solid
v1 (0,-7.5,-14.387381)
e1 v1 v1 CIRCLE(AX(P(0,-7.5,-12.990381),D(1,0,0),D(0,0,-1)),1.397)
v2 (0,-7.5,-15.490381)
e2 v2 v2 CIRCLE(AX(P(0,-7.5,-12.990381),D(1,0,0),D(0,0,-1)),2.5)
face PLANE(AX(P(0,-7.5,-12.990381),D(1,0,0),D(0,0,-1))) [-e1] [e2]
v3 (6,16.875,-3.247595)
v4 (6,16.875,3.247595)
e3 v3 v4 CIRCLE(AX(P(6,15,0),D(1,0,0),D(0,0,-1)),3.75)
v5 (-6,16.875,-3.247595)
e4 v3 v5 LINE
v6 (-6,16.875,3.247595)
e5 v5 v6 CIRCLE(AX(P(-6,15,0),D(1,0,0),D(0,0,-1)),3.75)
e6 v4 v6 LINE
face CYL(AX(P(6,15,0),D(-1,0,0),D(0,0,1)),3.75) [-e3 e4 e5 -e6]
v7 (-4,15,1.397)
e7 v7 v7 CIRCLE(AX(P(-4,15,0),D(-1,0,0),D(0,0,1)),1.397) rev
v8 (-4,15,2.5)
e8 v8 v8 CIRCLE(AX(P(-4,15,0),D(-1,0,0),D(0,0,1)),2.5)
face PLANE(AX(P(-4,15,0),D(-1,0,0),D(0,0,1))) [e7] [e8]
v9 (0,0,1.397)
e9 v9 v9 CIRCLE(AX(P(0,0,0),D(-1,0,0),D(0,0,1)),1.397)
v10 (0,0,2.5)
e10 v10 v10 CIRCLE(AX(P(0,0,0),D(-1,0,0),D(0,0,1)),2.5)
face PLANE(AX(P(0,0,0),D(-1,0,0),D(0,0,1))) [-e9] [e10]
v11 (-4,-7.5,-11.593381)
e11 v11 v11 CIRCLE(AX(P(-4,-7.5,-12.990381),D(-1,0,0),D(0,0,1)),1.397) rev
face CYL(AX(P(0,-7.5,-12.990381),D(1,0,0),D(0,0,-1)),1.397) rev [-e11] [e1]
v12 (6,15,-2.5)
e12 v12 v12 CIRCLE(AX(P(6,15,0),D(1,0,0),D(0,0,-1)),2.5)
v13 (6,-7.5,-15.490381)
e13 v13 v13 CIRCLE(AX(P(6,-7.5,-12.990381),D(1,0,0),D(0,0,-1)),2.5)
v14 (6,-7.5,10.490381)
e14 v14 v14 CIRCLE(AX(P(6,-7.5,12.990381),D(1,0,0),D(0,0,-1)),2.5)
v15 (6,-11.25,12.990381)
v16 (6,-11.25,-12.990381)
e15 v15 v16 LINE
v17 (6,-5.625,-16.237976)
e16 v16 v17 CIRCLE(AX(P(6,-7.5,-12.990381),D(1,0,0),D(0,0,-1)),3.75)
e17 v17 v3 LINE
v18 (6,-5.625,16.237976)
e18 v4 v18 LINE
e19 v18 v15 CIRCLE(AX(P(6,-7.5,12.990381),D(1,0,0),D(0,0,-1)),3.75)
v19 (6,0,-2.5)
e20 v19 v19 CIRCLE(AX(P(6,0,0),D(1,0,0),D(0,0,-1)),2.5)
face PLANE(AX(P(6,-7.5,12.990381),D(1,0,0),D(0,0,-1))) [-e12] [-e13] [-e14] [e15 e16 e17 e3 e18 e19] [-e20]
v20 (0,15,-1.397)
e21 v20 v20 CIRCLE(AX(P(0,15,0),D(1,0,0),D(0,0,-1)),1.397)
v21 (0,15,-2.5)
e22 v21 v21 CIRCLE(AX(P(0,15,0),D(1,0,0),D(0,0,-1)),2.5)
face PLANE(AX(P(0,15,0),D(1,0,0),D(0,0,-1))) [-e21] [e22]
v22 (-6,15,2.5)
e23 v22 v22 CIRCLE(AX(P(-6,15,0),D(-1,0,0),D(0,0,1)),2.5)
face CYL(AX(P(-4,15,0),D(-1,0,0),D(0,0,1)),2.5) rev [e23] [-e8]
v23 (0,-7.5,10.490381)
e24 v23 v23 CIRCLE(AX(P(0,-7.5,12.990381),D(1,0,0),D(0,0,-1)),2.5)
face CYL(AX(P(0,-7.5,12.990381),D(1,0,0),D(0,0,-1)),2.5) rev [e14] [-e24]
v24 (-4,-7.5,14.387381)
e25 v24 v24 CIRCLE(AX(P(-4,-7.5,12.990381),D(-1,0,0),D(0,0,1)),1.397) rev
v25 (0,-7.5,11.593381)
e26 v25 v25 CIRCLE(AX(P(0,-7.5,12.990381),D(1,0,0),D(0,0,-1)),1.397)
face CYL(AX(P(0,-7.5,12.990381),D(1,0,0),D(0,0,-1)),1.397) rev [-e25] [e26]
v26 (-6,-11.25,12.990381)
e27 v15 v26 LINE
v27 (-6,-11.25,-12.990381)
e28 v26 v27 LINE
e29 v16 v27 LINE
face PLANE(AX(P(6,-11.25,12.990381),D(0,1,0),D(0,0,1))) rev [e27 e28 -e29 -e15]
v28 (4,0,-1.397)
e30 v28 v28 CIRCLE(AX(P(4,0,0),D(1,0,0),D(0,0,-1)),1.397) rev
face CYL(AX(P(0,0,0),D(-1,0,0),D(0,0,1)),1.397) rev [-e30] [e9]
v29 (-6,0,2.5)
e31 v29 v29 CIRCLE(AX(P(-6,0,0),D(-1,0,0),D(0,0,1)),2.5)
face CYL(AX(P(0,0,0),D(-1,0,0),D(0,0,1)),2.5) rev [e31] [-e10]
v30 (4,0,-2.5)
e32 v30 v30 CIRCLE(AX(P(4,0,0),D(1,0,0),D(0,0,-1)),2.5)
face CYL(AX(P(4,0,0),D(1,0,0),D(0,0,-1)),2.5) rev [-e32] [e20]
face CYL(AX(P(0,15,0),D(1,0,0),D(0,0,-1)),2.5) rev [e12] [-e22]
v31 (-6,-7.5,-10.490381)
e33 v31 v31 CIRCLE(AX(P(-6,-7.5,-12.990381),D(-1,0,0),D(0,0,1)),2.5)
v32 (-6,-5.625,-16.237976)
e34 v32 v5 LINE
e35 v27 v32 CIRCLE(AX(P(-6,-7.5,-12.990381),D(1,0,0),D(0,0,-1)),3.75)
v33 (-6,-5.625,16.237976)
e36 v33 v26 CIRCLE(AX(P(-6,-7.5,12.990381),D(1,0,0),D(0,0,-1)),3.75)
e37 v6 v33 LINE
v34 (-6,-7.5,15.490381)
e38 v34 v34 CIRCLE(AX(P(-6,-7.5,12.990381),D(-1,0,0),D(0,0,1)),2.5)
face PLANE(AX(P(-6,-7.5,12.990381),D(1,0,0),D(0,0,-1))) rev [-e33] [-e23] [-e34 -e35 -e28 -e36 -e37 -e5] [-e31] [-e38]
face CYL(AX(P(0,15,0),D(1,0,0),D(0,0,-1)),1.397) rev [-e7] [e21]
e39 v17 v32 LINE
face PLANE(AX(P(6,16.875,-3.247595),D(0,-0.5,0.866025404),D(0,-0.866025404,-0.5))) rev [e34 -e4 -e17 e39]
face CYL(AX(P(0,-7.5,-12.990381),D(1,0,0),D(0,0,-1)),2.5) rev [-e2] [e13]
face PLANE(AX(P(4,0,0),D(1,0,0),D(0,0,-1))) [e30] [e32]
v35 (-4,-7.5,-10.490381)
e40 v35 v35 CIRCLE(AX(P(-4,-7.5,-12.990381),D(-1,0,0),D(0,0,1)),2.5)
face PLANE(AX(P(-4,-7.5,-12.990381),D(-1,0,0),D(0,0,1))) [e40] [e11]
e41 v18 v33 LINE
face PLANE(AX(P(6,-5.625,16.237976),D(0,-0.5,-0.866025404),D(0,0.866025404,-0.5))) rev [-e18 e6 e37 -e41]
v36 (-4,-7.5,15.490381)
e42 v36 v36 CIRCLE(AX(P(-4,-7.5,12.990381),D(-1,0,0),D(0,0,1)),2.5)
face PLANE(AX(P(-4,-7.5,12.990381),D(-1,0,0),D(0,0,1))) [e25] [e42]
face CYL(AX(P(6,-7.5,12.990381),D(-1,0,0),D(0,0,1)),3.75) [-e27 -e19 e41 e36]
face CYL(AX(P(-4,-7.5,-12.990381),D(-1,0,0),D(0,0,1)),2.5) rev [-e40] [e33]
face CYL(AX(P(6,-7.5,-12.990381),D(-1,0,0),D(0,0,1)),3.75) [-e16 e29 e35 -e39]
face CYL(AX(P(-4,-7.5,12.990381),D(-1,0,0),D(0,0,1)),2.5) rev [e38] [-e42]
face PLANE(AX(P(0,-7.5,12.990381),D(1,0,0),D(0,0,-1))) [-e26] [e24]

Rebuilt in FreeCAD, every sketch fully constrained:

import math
import FreeCAD as App
import Part
import Sketcher
Q = App.Units.Quantity

doc = App.newDocument("Part")
body = doc.addObject("PartDesign::Body", "Body")

# Sketch on YZ plane
sketch1 = body.newObject("Sketcher::SketchObject", "Sketch")
sketch1.AttachmentSupport = (doc.getObject("YZ_Plane"), [""])
sketch1.MapMode = "FlatFace"
sketch1.addGeometry(Part.LineSegment(App.Vector(16.9, 3.2, 0), App.Vector(-5.6, 16.2, 0)), False)
sketch1.addGeometry(Part.ArcOfCircle(Part.Circle(App.Vector(-7.5, 13, 0), App.Vector(0, 0, 1), 3.8), math.radians(60), math.radians(180)), False)
sketch1.addGeometry(Part.LineSegment(App.Vector(-11.2, 13, 0), App.Vector(-11.2, -13, 0)), False)
sketch1.addGeometry(Part.ArcOfCircle(Part.Circle(App.Vector(-7.5, -13, 0), App.Vector(0, 0, 1), 3.8), math.radians(180), math.radians(300)), False)
sketch1.addGeometry(Part.LineSegment(App.Vector(-5.6, -16.2, 0), App.Vector(16.9, -3.2, 0)), False)
sketch1.addGeometry(Part.ArcOfCircle(Part.Circle(App.Vector(15, 0, 0), App.Vector(0, 0, 1), 3.8), math.radians(-60), math.radians(60)), False)
sketch1.addConstraint(Sketcher.Constraint("Tangent", 0, 2, 1, 1))
sketch1.addConstraint(Sketcher.Constraint("Tangent", 1, 2, 2, 1))
sketch1.addConstraint(Sketcher.Constraint("Tangent", 2, 2, 3, 1))
sketch1.addConstraint(Sketcher.Constraint("Tangent", 3, 2, 4, 1))
sketch1.addConstraint(Sketcher.Constraint("Tangent", 4, 2, 5, 1))
sketch1.addConstraint(Sketcher.Constraint("Tangent", 5, 2, 0, 1))
sketch1.addConstraint(Sketcher.Constraint("Vertical", 2))
sketch1.addConstraint(Sketcher.Constraint("Equal", 1, 3))
sketch1.addConstraint(Sketcher.Constraint("Equal", 3, 5))
sketch1.addConstraint(Sketcher.Constraint("Symmetric", 0, 2, 3, 2, -1))
sketch1.addConstraint(Sketcher.Constraint("Angle", 0, Q("150 deg")))
sketch1.addConstraint(Sketcher.Constraint("Radius", 1, 3.75))
sketch1.addConstraint(Sketcher.Constraint("DistanceX", -1, 1, 5, 3, 15.0))
sketch1.addConstraint(Sketcher.Constraint("DistanceX", 1, 3, -1, 1, 7.5))
pad1 = body.newObject("PartDesign::Pad", "Pad")
pad1.Profile = sketch1
pad1.Length = 12
pad1.Midplane = True

# Sketch on YZ plane
sketch2 = body.newObject("Sketcher::SketchObject", "Sketch001")
sketch2.AttachmentSupport = (doc.getObject("YZ_Plane"), [""])
sketch2.MapMode = "FlatFace"
sketch2.AttachmentOffset = App.Placement(App.Vector(0, 0, 6), App.Rotation())
sketch2.addGeometry(Part.Circle(App.Vector(15, 0, 0), App.Vector(0, 0, 1), 2.5), False)
sketch2.addGeometry(Part.Circle(App.Vector(-7.5, 13, 0), App.Vector(0, 0, 1), 2.5), False)
sketch2.addGeometry(Part.Circle(App.Vector(-7.5, -13, 0), App.Vector(0, 0, 1), 2.5), False)
sketch2.addConstraint(Sketcher.Constraint("Equal", 0, 1))
sketch2.addConstraint(Sketcher.Constraint("Equal", 1, 2))
sketch2.addConstraint(Sketcher.Constraint("Symmetric", 1, 3, 2, 3, -1))
sketch2.addConstraint(Sketcher.Constraint("PointOnObject", 0, 3, -1))
sketch2.addConstraint(Sketcher.Constraint("Diameter", 0, 5.0))
sketch2.addConstraint(Sketcher.Constraint("DistanceX", -1, 1, 0, 3, 15.0))
sketch2.addConstraint(Sketcher.Constraint("DistanceX", 1, 3, -1, 1, 7.5))
sketch2.addConstraint(Sketcher.Constraint("DistanceY", -1, 1, 1, 3, 12.990381))
pocket1 = body.newObject("PartDesign::Pocket", "Pocket")
pocket1.Profile = sketch2
pocket1.Length = 6

# Sketch on YZ plane
sketch3 = body.newObject("Sketcher::SketchObject", "Sketch002")
sketch3.AttachmentSupport = (doc.getObject("YZ_Plane"), [""])
sketch3.MapMode = "FlatFace"
sketch3.AttachmentOffset = App.Placement(App.Vector(0, 0, -6), App.Rotation())
sketch3.addGeometry(Part.Circle(App.Vector(0, 0, 0), App.Vector(0, 0, 1), 2.5), False)
sketch3.addConstraint(Sketcher.Constraint("Coincident", 0, 3, -1, 1))
sketch3.addConstraint(Sketcher.Constraint("Diameter", 0, 5.0))
pocket2 = body.newObject("PartDesign::Pocket", "Pocket001")
pocket2.Profile = sketch3
pocket2.Length = 6
pocket2.Reversed = True

# Sketch on YZ plane
sketch4 = body.newObject("Sketcher::SketchObject", "Sketch003")
sketch4.AttachmentSupport = (doc.getObject("YZ_Plane"), [""])
sketch4.MapMode = "FlatFace"
sketch4.addGeometry(Part.Circle(App.Vector(-7.5, -13, 0), App.Vector(0, 0, 1), 1.4), False)
sketch4.addGeometry(Part.Circle(App.Vector(15, 0, 0), App.Vector(0, 0, 1), 1.4), False)
sketch4.addGeometry(Part.Circle(App.Vector(-7.5, 13, 0), App.Vector(0, 0, 1), 1.4), False)
sketch4.addConstraint(Sketcher.Constraint("Equal", 0, 1))
sketch4.addConstraint(Sketcher.Constraint("Equal", 1, 2))
sketch4.addConstraint(Sketcher.Constraint("Symmetric", 0, 3, 2, 3, -1))
sketch4.addConstraint(Sketcher.Constraint("PointOnObject", 1, 3, -1))
sketch4.addConstraint(Sketcher.Constraint("Diameter", 0, 2.794))
sketch4.addConstraint(Sketcher.Constraint("DistanceX", -1, 1, 1, 3, 15.0))
sketch4.addConstraint(Sketcher.Constraint("DistanceX", 0, 3, -1, 1, 7.5))
sketch4.addConstraint(Sketcher.Constraint("DistanceY", 0, 3, -1, 1, 12.990381))
doc.recompute()
hole = body.newObject("PartDesign::Hole", "Hole")
hole.Profile = sketch4
hole.ThreadType = "None"
hole.Diameter = 2.794
hole.DepthType = "Dimension"
hole.Depth = 6
hole.DrillPoint = "Angled"
hole.DrillPointAngle = 118

# Sketch on YZ plane
sketch5 = body.newObject("Sketcher::SketchObject", "Sketch004")
sketch5.AttachmentSupport = (doc.getObject("YZ_Plane"), [""])
sketch5.MapMode = "FlatFace"
sketch5.addGeometry(Part.Circle(App.Vector(0, 0, 0), App.Vector(0, 0, 1), 1.4), False)
sketch5.addConstraint(Sketcher.Constraint("Coincident", 0, 3, -1, 1))
sketch5.addConstraint(Sketcher.Constraint("Diameter", 0, 2.794))
doc.recompute()
hole2 = body.newObject("PartDesign::Hole", "Hole001")
hole2.Profile = sketch5
hole2.ThreadType = "None"
hole2.Diameter = 2.794
hole2.DepthType = "Dimension"
hole2.Depth = 6
hole2.DrillPoint = "Angled"
hole2.DrillPointAngle = 118
hole2.Reversed = True

# Sketch on YZ plane
sketch6 = body.newObject("Sketcher::SketchObject", "Sketch005")
sketch6.AttachmentSupport = (doc.getObject("YZ_Plane"), [""])
sketch6.MapMode = "FlatFace"
sketch6.AttachmentOffset = App.Placement(App.Vector(0, 0, -4), App.Rotation())
sketch6.addGeometry(Part.Circle(App.Vector(15, 0, 0), App.Vector(0, 0, 1), 2.5), False)
sketch6.addGeometry(Part.Circle(App.Vector(-7.5, -13, 0), App.Vector(0, 0, 1), 2.5), False)
sketch6.addGeometry(Part.Circle(App.Vector(-7.5, 13, 0), App.Vector(0, 0, 1), 2.5), False)
sketch6.addConstraint(Sketcher.Constraint("Equal", 0, 1))
sketch6.addConstraint(Sketcher.Constraint("Equal", 1, 2))
sketch6.addConstraint(Sketcher.Constraint("Symmetric", 1, 3, 2, 3, -1))
sketch6.addConstraint(Sketcher.Constraint("PointOnObject", 0, 3, -1))
sketch6.addConstraint(Sketcher.Constraint("Diameter", 0, 5.0))
sketch6.addConstraint(Sketcher.Constraint("DistanceX", -1, 1, 0, 3, 15.0))
sketch6.addConstraint(Sketcher.Constraint("DistanceX", 1, 3, -1, 1, 7.5))
sketch6.addConstraint(Sketcher.Constraint("DistanceY", 1, 3, -1, 1, 12.990381))
pocket3 = body.newObject("PartDesign::Pocket", "Pocket002")
pocket3.Profile = sketch6
pocket3.Length = 2

# Sketch on YZ plane
sketch7 = body.newObject("Sketcher::SketchObject", "Sketch006")
sketch7.AttachmentSupport = (doc.getObject("YZ_Plane"), [""])
sketch7.MapMode = "FlatFace"
sketch7.AttachmentOffset = App.Placement(App.Vector(0, 0, 4), App.Rotation())
sketch7.addGeometry(Part.Circle(App.Vector(0, 0, 0), App.Vector(0, 0, 1), 2.5), False)
sketch7.addConstraint(Sketcher.Constraint("Coincident", 0, 3, -1, 1))
sketch7.addConstraint(Sketcher.Constraint("Diameter", 0, 5.0))
pocket4 = body.newObject("PartDesign::Pocket", "Pocket003")
pocket4.Profile = sketch7
pocket4.Length = 2
pocket4.Reversed = True

doc.recompute()
